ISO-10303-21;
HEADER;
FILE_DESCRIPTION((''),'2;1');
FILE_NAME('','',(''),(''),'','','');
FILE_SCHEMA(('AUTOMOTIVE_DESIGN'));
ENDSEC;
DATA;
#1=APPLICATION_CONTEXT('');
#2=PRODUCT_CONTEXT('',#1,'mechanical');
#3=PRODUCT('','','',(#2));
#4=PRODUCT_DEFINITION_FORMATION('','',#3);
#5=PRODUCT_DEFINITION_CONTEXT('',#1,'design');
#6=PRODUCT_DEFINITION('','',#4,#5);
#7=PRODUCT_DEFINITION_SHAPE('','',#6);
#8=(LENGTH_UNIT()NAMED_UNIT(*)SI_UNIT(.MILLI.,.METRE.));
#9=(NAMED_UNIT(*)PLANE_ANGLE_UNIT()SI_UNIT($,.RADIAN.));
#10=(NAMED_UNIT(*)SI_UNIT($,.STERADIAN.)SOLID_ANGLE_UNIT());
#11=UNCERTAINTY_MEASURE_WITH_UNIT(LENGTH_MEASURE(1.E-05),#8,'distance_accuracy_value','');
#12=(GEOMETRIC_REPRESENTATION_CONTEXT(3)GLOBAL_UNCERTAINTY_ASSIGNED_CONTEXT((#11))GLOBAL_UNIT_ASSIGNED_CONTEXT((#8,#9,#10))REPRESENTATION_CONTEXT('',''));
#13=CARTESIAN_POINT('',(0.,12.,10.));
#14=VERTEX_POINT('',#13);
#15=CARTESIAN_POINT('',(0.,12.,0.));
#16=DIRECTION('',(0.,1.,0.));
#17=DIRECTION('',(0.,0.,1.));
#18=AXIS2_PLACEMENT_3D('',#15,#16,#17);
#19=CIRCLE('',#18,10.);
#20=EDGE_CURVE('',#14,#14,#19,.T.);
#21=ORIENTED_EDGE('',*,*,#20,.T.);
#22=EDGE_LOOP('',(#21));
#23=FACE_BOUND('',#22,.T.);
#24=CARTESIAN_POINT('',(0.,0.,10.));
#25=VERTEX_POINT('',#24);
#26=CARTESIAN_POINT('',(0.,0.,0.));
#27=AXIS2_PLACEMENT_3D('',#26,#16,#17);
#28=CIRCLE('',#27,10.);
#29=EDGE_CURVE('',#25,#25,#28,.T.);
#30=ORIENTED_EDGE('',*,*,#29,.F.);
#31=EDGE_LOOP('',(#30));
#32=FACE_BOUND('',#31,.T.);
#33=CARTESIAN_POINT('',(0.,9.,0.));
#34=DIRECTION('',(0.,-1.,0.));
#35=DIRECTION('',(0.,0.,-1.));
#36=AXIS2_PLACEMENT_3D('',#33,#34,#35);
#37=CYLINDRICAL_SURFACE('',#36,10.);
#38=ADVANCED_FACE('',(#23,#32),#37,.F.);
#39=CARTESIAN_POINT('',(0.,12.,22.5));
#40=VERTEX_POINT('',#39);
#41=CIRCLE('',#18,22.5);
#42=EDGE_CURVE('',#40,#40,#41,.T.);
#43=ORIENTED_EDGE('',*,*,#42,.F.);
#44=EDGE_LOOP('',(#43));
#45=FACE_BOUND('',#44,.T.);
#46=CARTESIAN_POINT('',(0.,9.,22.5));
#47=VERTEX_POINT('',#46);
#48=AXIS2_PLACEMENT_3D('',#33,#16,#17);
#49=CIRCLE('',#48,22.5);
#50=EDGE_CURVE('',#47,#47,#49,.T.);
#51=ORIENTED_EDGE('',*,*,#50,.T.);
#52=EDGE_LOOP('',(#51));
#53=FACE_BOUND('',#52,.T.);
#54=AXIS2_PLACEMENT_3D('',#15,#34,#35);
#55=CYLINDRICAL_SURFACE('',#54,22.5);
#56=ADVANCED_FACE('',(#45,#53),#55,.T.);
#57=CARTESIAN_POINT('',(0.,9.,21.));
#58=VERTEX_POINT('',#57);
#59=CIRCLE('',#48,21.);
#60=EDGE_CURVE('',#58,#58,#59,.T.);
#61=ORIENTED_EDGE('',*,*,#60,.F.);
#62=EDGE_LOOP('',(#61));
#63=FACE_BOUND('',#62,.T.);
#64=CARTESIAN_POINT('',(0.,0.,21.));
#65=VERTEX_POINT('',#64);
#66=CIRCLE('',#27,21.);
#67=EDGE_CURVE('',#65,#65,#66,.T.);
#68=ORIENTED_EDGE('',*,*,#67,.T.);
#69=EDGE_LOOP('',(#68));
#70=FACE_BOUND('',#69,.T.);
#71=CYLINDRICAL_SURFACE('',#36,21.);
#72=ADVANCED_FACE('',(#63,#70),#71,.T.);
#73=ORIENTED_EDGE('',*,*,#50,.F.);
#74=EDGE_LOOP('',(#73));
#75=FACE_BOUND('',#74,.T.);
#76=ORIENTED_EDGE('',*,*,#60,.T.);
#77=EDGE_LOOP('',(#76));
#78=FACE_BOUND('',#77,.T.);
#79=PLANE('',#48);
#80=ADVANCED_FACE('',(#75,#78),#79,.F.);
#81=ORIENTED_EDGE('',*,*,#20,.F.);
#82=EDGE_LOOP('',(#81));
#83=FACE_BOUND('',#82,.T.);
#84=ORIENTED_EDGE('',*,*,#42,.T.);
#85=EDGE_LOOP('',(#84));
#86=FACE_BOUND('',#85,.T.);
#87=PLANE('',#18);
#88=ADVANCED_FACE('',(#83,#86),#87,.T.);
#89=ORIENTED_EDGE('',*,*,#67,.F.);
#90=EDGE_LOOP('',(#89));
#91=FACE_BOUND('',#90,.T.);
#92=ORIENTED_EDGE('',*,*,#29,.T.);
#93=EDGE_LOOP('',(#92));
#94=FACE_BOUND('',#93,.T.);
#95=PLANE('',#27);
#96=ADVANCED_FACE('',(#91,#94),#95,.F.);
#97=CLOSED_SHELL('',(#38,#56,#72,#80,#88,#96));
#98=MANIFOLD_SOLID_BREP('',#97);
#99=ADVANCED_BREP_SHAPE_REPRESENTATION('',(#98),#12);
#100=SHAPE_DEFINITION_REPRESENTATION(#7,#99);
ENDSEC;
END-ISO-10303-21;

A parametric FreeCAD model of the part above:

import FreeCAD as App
import Part
import Sketcher
from FreeCAD import Vector

doc = App.newDocument("Part")
body = doc.addObject("PartDesign::Body", "Body")

# Sketch on XZ plane
sketch1 = body.newObject("Sketcher::SketchObject", "Sketch")
sketch1.AttachmentSupport = (doc.getObject("XZ_Plane"), [""])
sketch1.MapMode = "FlatFace"
sketch1.addGeometry(Part.Circle(Vector(0, 0, 0), Vector(0, 0, 1), 21), False)
sketch1.addGeometry(Part.Circle(Vector(0, 0, 0), Vector(0, 0, 1), 10), False)
sketch1.addConstraint(Sketcher.Constraint("Coincident", 0, 3, -1, 1))
sketch1.addConstraint(Sketcher.Constraint("Coincident", 1, 3, -1, 1))
sketch1.addConstraint(Sketcher.Constraint("Diameter", 0, 42.0))
sketch1.addConstraint(Sketcher.Constraint("Diameter", 1, 20.0))
pad1 = body.newObject("PartDesign::Pad", "Pad")
pad1.Profile = sketch1
pad1.Length = 9
pad1.Reversed = True

# Sketch on XZ plane
sketch2 = body.newObject("Sketcher::SketchObject", "Sketch001")
sketch2.AttachmentSupport = (doc.getObject("XZ_Plane"), [""])
sketch2.MapMode = "FlatFace"
sketch2.AttachmentOffset = App.Placement(Vector(0, 0, -9), App.Rotation())
sketch2.addGeometry(Part.Circle(Vector(0, 0, 0), Vector(0, 0, 1), 22), False)
sketch2.addGeometry(Part.Circle(Vector(0, 0, 0), Vector(0, 0, 1), 10), False)
sketch2.addConstraint(Sketcher.Constraint("Coincident", 0, 3, -1, 1))
sketch2.addConstraint(Sketcher.Constraint("Coincident", 1, 3, -1, 1))
sketch2.addConstraint(Sketcher.Constraint("Diameter", 0, 45.0))
sketch2.addConstraint(Sketcher.Constraint("Diameter", 1, 20.0))
pad2 = body.newObject("PartDesign::Pad", "Pad001")
pad2.Profile = sketch2
pad2.Length = 3
pad2.Reversed = True

doc.recompute()
